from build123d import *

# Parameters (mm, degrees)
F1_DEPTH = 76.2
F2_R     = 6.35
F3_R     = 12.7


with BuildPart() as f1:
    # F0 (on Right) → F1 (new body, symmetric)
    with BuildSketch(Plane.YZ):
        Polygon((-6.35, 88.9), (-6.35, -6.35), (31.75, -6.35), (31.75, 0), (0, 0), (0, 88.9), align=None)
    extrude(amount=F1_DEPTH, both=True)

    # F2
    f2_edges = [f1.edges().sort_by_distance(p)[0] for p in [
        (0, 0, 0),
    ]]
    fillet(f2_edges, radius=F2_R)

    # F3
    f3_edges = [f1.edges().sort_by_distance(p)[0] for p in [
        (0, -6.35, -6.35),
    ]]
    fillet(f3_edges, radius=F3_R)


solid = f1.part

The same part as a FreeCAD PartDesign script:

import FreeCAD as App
import Part
import Sketcher
from FreeCAD import Vector
Q = App.Units.Quantity


def edges_at(feature, points):
    """Names of the edges that pass closest to the given points."""
    edges = feature.Shape.Edges
    near = lambda p: min(range(len(edges)), key=lambda i: edges[i].distToShape(Part.Vertex(*p))[0])
    return sorted({f"Edge{near(p) + 1}" for p in points})

doc = App.newDocument("Part")
body = doc.addObject("PartDesign::Body", "Body")

# Sketch on YZ plane
sketch1 = body.newObject("Sketcher::SketchObject", "Sketch")
sketch1.AttachmentSupport = (doc.getObject("YZ_Plane"), [""])
sketch1.MapMode = "FlatFace"
sketch1.addGeometry(Part.LineSegment(Vector(-6.35, 88.9, 0), Vector(-6.35, -6.35, 0)), False)
sketch1.addGeometry(Part.LineSegment(Vector(-6.35, -6.35, 0), Vector(31.75, -6.35, 0)), False)
sketch1.addGeometry(Part.LineSegment(Vector(31.75, -6.35, 0), Vector(31.75, 0, 0)), False)
sketch1.addGeometry(Part.LineSegment(Vector(31.75, 0, 0), Vector(0, 0, 0)), False)
sketch1.addGeometry(Part.LineSegment(Vector(0, 0, 0), Vector(0, 88.9, 0)), False)
sketch1.addGeometry(Part.LineSegment(Vector(0, 88.9, 0), Vector(-6.35, 88.9, 0)), False)
sketch1.addConstraint(Sketcher.Constraint("Coincident", 0, 2, 1, 1))
sketch1.addConstraint(Sketcher.Constraint("Coincident", 1, 2, 2, 1))
sketch1.addConstraint(Sketcher.Constraint("Coincident", 2, 2, 3, 1))
sketch1.addConstraint(Sketcher.Constraint("Coincident", 3, 2, 4, 1))
sketch1.addConstraint(Sketcher.Constraint("Coincident", 4, 2, 5, 1))
sketch1.addConstraint(Sketcher.Constraint("Coincident", 5, 2, 0, 1))
sketch1.addConstraint(Sketcher.Constraint("Vertical", 0))
sketch1.addConstraint(Sketcher.Constraint("Horizontal", 1))
sketch1.addConstraint(Sketcher.Constraint("Vertical", 2))
sketch1.addConstraint(Sketcher.Constraint("Horizontal", 3))
sketch1.addConstraint(Sketcher.Constraint("Vertical", 4))
sketch1.addConstraint(Sketcher.Constraint("Horizontal", 5))
sketch1.addConstraint(Sketcher.Constraint("Coincident", 3, 2, -1, 1))
sketch1.addConstraint(Sketcher.Constraint("Equal", 5, 2))
sketch1.addConstraint(Sketcher.Constraint("DistanceX", 1, 1, 1, 2, Q("1.5 in")))
sketch1.addConstraint(Sketcher.Constraint("DistanceY", 4, 1, 4, 2, Q("3.5 in")))
sketch1.addConstraint(Sketcher.Constraint("DistanceX", 3, 2, 3, 1, Q("1.25 in")))
pad1 = body.newObject("PartDesign::Pad", "Pad")
pad1.Profile = sketch1
pad1.Length = Q("6 in")
pad1.Midplane = True
doc.recompute()

fillet = body.newObject("PartDesign::Fillet", "Fillet")
fillet.Base = (pad1, edges_at(pad1, [(0, 0, 0)]))
fillet.Radius = Q("0.25 in")
doc.recompute()

fillet2 = body.newObject("PartDesign::Fillet", "Fillet001")
fillet2.Base = (fillet, edges_at(fillet, [(0, -6.35, -6.35)]))
fillet2.Radius = Q("0.5 in")

doc.recompute()
